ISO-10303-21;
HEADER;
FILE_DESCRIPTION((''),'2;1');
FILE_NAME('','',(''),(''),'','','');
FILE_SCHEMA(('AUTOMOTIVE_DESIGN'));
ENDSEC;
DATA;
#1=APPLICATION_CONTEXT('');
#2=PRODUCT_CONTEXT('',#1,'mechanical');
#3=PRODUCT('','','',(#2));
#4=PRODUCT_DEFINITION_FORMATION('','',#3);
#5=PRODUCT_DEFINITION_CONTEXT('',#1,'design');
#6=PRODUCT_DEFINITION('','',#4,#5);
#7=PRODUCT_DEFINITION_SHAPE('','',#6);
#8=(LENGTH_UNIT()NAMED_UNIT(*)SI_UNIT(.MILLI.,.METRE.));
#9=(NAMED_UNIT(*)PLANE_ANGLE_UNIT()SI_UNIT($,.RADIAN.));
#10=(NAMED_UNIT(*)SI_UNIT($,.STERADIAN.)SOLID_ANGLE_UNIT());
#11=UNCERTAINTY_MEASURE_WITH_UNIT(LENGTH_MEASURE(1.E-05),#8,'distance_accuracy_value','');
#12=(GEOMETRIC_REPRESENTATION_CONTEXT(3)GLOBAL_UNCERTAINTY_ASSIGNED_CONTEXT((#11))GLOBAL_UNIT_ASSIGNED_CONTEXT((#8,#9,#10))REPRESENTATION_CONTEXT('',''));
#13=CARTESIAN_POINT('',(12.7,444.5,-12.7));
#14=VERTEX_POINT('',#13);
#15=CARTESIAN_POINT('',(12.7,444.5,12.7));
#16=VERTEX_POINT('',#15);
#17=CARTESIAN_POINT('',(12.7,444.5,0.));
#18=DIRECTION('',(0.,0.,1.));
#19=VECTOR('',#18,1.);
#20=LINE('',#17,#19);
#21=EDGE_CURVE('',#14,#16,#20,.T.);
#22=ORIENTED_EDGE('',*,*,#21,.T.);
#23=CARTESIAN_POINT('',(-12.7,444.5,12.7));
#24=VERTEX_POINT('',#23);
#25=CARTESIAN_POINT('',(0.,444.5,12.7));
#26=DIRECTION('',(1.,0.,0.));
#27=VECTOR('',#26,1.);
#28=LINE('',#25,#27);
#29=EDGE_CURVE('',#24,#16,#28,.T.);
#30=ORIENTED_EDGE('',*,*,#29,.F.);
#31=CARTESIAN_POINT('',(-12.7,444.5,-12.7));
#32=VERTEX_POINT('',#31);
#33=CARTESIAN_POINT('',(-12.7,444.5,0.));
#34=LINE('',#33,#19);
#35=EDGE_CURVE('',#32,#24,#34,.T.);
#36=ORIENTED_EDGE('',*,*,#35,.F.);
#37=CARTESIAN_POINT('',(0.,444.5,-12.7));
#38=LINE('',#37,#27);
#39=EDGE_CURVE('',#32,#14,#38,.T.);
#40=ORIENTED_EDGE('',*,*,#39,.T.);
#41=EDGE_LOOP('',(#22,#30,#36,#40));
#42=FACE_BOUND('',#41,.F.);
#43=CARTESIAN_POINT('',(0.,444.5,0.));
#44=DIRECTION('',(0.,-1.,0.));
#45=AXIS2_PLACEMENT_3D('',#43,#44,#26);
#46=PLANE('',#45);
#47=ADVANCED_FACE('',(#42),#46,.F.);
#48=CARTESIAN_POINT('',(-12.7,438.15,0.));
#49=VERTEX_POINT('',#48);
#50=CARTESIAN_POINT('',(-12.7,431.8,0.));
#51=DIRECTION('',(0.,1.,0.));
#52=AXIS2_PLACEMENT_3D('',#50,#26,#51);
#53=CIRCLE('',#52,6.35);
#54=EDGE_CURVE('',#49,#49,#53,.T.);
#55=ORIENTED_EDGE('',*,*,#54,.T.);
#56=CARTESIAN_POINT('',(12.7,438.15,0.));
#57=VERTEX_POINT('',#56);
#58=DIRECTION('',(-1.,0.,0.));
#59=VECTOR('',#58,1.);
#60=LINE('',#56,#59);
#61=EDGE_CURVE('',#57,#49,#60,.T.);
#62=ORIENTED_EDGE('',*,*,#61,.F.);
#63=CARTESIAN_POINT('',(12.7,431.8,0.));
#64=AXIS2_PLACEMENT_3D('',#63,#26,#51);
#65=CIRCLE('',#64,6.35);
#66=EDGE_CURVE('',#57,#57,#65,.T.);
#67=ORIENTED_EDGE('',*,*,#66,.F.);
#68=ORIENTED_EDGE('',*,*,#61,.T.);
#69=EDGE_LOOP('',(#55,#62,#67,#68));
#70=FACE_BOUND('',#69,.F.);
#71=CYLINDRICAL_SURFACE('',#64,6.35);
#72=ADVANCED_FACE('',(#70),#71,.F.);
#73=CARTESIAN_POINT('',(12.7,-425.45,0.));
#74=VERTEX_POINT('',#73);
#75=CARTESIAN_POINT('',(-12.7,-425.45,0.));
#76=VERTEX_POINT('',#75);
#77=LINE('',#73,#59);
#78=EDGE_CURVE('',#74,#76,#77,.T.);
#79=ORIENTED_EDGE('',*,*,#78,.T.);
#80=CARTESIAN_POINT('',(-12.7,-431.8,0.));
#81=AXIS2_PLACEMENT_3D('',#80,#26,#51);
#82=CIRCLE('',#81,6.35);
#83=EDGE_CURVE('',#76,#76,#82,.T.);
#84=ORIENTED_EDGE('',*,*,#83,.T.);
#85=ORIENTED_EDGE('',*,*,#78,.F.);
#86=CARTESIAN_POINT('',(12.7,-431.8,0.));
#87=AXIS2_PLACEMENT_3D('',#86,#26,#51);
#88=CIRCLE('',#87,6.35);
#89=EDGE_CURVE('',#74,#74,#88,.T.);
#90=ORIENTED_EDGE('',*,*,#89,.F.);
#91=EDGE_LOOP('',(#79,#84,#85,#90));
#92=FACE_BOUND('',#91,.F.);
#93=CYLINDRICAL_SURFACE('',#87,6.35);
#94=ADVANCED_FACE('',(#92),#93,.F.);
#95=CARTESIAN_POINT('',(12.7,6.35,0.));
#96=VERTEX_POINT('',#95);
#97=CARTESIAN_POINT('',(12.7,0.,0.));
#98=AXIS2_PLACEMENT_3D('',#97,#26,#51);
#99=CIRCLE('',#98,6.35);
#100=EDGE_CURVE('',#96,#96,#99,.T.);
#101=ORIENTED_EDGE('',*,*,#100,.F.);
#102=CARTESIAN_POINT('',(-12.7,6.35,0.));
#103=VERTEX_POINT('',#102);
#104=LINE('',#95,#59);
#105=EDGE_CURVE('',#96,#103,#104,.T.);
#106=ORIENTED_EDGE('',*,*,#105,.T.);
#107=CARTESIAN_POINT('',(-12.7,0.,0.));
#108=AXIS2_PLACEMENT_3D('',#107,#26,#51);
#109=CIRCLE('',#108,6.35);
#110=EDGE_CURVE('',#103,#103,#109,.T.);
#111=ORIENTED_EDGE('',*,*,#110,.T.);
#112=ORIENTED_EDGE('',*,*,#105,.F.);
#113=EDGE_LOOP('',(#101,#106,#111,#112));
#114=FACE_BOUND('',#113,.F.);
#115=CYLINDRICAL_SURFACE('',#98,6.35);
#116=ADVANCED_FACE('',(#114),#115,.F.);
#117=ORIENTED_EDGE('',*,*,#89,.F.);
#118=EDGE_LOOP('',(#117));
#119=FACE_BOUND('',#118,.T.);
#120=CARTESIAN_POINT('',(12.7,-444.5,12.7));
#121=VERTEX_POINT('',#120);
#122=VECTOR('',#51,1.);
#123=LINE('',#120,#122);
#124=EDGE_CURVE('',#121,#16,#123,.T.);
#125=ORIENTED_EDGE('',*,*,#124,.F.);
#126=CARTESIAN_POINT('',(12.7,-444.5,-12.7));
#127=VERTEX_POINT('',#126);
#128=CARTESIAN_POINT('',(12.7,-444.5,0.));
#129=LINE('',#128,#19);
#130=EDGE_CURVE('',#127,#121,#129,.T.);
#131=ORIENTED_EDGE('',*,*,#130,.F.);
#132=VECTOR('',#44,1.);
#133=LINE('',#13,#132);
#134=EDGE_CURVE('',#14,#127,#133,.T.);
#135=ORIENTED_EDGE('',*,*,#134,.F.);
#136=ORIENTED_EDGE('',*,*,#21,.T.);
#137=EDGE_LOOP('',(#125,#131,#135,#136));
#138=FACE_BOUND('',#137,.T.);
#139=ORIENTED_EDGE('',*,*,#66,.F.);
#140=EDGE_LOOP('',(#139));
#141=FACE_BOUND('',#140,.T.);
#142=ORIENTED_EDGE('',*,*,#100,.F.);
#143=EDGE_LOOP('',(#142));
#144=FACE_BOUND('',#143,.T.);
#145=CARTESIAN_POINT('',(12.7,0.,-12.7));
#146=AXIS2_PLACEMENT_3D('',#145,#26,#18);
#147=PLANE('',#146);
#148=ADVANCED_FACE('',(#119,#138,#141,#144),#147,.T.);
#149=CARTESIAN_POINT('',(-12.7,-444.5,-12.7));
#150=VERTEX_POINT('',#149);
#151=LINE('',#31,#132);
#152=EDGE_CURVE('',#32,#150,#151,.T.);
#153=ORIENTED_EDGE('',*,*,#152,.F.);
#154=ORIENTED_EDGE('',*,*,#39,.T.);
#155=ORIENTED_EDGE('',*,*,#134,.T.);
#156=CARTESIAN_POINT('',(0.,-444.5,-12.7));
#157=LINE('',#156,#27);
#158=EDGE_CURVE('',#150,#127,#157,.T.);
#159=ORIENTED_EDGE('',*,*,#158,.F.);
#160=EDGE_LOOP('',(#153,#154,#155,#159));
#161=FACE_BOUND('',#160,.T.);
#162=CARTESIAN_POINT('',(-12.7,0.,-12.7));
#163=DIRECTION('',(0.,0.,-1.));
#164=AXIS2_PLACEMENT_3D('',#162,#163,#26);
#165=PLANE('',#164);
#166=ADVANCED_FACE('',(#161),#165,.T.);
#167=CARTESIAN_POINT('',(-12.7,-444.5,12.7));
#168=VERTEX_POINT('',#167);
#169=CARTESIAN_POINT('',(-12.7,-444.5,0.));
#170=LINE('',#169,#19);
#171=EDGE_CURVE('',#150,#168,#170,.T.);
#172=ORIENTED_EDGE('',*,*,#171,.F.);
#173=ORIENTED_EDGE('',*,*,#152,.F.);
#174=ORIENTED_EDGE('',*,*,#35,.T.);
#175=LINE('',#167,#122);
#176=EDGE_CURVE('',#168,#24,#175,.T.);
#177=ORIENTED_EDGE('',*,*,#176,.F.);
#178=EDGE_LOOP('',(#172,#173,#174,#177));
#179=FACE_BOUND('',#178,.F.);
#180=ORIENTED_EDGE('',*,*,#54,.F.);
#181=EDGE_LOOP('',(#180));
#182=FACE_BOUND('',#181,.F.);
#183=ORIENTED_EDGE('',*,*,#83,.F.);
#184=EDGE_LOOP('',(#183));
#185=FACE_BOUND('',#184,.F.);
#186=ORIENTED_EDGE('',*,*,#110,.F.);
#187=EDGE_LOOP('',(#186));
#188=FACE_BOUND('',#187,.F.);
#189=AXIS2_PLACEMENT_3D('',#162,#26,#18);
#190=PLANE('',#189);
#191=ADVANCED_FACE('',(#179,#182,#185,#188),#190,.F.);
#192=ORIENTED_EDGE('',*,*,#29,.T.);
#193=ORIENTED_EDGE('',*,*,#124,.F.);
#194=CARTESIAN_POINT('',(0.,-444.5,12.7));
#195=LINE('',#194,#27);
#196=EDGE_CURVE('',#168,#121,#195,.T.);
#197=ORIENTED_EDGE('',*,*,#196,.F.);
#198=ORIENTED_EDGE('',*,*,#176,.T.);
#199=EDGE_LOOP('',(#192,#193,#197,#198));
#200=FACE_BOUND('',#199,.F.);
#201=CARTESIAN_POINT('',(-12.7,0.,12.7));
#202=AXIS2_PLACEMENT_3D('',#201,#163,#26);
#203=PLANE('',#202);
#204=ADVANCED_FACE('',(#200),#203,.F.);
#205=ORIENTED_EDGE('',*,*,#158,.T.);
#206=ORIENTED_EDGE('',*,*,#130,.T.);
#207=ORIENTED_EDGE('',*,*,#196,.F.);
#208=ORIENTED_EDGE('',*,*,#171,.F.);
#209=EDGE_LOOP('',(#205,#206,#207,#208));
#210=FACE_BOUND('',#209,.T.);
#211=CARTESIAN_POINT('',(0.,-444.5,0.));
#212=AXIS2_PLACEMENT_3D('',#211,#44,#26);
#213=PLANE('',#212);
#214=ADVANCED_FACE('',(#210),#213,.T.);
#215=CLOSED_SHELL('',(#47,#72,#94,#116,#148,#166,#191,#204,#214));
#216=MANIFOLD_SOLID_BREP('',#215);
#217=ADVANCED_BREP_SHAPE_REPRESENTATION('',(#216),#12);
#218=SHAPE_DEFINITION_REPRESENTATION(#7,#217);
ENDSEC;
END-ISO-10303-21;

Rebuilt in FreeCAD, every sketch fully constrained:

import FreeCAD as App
import Part
import Sketcher
Q = App.Units.Quantity


def add_polygon(sketch, points):
    """Adds a closed chain of lines whose ends are joined by coincident constraints."""
    first, n = sketch.GeometryCount, len(points)
    for a, b in zip(points, points[1:] + points[:1]):
        sketch.addGeometry(Part.LineSegment(App.Vector(*a, 0), App.Vector(*b, 0)), False)
    for i in range(n):
        sketch.addConstraint(Sketcher.Constraint("Coincident", first + i, 2, first + (i + 1) % n, 1))

doc = App.newDocument("Part")
body = doc.addObject("PartDesign::Body", "Body")

# Sketch on XZ plane
sketch1 = body.newObject("Sketcher::SketchObject", "Sketch")
sketch1.AttachmentSupport = (doc.getObject("XZ_Plane"), [""])
sketch1.MapMode = "FlatFace"
add_polygon(sketch1, [(-13, 13), (-13, -13), (13, -13), (13, 13)])  # lines 0-3
sketch1.addConstraint([
    Sketcher.Constraint("Vertical", 0),
    Sketcher.Constraint("Horizontal", 1),
    Sketcher.Constraint("Vertical", 2),
    Sketcher.Constraint("Horizontal", 3),
    Sketcher.Constraint("Symmetric", 0, 2, 2, 2, -1, 1),
    Sketcher.Constraint("Equal", 3, 0),
    Sketcher.Constraint("DistanceX", 1, 1, 1, 2, Q("1 in")),
])
pad1 = body.newObject("PartDesign::Pad", "Pad")
pad1.Profile = sketch1
pad1.Length = Q("35 in")
pad1.Midplane = True

# Sketch on YZ plane
sketch2 = body.newObject("Sketcher::SketchObject", "Sketch001")
sketch2.AttachmentSupport = (doc.getObject("YZ_Plane"), [""])
sketch2.MapMode = "FlatFace"
sketch2.AttachmentOffset = App.Placement(App.Vector(0, 0, 0.5 * 25.4), App.Rotation())
sketch2.addGeometry([
    Part.Circle(App.Vector(-432, 0, 0), App.Vector(0, 0, 1), 6),
    Part.Circle(App.Vector(432, 0, 0), App.Vector(0, 0, 1), 6),
], False)
sketch2.addConstraint([
    Sketcher.Constraint("Equal", 0, 1),
    Sketcher.Constraint("Symmetric", 0, 3, 1, 3, -1, 1),
    Sketcher.Constraint("PointOnObject", 0, 3, -1),
    Sketcher.Constraint("Diameter", 0, Q("0.5 in")),
    Sketcher.Constraint("DistanceX", 0, 3, -1, 1, Q("17 in")),
])
pocket1 = body.newObject("PartDesign::Pocket", "Pocket")
pocket1.Profile = sketch2
pocket1.Type = "ThroughAll"

# Sketch on YZ plane
sketch3 = body.newObject("Sketcher::SketchObject", "Sketch002")
sketch3.AttachmentSupport = (doc.getObject("YZ_Plane"), [""])
sketch3.MapMode = "FlatFace"
sketch3.AttachmentOffset = App.Placement(App.Vector(0, 0, 0.5 * 25.4), App.Rotation())
sketch3.addGeometry(Part.Circle(App.Vector(0, 0, 0), App.Vector(0, 0, 1), 6), False)
sketch3.addConstraint([
    Sketcher.Constraint("Coincident", 0, 3, -1, 1),
    Sketcher.Constraint("Diameter", 0, Q("0.5 in")),
])
pocket2 = body.newObject("PartDesign::Pocket", "Pocket001")
pocket2.Profile = sketch3
pocket2.Type = "ThroughAll"

doc.recompute()
